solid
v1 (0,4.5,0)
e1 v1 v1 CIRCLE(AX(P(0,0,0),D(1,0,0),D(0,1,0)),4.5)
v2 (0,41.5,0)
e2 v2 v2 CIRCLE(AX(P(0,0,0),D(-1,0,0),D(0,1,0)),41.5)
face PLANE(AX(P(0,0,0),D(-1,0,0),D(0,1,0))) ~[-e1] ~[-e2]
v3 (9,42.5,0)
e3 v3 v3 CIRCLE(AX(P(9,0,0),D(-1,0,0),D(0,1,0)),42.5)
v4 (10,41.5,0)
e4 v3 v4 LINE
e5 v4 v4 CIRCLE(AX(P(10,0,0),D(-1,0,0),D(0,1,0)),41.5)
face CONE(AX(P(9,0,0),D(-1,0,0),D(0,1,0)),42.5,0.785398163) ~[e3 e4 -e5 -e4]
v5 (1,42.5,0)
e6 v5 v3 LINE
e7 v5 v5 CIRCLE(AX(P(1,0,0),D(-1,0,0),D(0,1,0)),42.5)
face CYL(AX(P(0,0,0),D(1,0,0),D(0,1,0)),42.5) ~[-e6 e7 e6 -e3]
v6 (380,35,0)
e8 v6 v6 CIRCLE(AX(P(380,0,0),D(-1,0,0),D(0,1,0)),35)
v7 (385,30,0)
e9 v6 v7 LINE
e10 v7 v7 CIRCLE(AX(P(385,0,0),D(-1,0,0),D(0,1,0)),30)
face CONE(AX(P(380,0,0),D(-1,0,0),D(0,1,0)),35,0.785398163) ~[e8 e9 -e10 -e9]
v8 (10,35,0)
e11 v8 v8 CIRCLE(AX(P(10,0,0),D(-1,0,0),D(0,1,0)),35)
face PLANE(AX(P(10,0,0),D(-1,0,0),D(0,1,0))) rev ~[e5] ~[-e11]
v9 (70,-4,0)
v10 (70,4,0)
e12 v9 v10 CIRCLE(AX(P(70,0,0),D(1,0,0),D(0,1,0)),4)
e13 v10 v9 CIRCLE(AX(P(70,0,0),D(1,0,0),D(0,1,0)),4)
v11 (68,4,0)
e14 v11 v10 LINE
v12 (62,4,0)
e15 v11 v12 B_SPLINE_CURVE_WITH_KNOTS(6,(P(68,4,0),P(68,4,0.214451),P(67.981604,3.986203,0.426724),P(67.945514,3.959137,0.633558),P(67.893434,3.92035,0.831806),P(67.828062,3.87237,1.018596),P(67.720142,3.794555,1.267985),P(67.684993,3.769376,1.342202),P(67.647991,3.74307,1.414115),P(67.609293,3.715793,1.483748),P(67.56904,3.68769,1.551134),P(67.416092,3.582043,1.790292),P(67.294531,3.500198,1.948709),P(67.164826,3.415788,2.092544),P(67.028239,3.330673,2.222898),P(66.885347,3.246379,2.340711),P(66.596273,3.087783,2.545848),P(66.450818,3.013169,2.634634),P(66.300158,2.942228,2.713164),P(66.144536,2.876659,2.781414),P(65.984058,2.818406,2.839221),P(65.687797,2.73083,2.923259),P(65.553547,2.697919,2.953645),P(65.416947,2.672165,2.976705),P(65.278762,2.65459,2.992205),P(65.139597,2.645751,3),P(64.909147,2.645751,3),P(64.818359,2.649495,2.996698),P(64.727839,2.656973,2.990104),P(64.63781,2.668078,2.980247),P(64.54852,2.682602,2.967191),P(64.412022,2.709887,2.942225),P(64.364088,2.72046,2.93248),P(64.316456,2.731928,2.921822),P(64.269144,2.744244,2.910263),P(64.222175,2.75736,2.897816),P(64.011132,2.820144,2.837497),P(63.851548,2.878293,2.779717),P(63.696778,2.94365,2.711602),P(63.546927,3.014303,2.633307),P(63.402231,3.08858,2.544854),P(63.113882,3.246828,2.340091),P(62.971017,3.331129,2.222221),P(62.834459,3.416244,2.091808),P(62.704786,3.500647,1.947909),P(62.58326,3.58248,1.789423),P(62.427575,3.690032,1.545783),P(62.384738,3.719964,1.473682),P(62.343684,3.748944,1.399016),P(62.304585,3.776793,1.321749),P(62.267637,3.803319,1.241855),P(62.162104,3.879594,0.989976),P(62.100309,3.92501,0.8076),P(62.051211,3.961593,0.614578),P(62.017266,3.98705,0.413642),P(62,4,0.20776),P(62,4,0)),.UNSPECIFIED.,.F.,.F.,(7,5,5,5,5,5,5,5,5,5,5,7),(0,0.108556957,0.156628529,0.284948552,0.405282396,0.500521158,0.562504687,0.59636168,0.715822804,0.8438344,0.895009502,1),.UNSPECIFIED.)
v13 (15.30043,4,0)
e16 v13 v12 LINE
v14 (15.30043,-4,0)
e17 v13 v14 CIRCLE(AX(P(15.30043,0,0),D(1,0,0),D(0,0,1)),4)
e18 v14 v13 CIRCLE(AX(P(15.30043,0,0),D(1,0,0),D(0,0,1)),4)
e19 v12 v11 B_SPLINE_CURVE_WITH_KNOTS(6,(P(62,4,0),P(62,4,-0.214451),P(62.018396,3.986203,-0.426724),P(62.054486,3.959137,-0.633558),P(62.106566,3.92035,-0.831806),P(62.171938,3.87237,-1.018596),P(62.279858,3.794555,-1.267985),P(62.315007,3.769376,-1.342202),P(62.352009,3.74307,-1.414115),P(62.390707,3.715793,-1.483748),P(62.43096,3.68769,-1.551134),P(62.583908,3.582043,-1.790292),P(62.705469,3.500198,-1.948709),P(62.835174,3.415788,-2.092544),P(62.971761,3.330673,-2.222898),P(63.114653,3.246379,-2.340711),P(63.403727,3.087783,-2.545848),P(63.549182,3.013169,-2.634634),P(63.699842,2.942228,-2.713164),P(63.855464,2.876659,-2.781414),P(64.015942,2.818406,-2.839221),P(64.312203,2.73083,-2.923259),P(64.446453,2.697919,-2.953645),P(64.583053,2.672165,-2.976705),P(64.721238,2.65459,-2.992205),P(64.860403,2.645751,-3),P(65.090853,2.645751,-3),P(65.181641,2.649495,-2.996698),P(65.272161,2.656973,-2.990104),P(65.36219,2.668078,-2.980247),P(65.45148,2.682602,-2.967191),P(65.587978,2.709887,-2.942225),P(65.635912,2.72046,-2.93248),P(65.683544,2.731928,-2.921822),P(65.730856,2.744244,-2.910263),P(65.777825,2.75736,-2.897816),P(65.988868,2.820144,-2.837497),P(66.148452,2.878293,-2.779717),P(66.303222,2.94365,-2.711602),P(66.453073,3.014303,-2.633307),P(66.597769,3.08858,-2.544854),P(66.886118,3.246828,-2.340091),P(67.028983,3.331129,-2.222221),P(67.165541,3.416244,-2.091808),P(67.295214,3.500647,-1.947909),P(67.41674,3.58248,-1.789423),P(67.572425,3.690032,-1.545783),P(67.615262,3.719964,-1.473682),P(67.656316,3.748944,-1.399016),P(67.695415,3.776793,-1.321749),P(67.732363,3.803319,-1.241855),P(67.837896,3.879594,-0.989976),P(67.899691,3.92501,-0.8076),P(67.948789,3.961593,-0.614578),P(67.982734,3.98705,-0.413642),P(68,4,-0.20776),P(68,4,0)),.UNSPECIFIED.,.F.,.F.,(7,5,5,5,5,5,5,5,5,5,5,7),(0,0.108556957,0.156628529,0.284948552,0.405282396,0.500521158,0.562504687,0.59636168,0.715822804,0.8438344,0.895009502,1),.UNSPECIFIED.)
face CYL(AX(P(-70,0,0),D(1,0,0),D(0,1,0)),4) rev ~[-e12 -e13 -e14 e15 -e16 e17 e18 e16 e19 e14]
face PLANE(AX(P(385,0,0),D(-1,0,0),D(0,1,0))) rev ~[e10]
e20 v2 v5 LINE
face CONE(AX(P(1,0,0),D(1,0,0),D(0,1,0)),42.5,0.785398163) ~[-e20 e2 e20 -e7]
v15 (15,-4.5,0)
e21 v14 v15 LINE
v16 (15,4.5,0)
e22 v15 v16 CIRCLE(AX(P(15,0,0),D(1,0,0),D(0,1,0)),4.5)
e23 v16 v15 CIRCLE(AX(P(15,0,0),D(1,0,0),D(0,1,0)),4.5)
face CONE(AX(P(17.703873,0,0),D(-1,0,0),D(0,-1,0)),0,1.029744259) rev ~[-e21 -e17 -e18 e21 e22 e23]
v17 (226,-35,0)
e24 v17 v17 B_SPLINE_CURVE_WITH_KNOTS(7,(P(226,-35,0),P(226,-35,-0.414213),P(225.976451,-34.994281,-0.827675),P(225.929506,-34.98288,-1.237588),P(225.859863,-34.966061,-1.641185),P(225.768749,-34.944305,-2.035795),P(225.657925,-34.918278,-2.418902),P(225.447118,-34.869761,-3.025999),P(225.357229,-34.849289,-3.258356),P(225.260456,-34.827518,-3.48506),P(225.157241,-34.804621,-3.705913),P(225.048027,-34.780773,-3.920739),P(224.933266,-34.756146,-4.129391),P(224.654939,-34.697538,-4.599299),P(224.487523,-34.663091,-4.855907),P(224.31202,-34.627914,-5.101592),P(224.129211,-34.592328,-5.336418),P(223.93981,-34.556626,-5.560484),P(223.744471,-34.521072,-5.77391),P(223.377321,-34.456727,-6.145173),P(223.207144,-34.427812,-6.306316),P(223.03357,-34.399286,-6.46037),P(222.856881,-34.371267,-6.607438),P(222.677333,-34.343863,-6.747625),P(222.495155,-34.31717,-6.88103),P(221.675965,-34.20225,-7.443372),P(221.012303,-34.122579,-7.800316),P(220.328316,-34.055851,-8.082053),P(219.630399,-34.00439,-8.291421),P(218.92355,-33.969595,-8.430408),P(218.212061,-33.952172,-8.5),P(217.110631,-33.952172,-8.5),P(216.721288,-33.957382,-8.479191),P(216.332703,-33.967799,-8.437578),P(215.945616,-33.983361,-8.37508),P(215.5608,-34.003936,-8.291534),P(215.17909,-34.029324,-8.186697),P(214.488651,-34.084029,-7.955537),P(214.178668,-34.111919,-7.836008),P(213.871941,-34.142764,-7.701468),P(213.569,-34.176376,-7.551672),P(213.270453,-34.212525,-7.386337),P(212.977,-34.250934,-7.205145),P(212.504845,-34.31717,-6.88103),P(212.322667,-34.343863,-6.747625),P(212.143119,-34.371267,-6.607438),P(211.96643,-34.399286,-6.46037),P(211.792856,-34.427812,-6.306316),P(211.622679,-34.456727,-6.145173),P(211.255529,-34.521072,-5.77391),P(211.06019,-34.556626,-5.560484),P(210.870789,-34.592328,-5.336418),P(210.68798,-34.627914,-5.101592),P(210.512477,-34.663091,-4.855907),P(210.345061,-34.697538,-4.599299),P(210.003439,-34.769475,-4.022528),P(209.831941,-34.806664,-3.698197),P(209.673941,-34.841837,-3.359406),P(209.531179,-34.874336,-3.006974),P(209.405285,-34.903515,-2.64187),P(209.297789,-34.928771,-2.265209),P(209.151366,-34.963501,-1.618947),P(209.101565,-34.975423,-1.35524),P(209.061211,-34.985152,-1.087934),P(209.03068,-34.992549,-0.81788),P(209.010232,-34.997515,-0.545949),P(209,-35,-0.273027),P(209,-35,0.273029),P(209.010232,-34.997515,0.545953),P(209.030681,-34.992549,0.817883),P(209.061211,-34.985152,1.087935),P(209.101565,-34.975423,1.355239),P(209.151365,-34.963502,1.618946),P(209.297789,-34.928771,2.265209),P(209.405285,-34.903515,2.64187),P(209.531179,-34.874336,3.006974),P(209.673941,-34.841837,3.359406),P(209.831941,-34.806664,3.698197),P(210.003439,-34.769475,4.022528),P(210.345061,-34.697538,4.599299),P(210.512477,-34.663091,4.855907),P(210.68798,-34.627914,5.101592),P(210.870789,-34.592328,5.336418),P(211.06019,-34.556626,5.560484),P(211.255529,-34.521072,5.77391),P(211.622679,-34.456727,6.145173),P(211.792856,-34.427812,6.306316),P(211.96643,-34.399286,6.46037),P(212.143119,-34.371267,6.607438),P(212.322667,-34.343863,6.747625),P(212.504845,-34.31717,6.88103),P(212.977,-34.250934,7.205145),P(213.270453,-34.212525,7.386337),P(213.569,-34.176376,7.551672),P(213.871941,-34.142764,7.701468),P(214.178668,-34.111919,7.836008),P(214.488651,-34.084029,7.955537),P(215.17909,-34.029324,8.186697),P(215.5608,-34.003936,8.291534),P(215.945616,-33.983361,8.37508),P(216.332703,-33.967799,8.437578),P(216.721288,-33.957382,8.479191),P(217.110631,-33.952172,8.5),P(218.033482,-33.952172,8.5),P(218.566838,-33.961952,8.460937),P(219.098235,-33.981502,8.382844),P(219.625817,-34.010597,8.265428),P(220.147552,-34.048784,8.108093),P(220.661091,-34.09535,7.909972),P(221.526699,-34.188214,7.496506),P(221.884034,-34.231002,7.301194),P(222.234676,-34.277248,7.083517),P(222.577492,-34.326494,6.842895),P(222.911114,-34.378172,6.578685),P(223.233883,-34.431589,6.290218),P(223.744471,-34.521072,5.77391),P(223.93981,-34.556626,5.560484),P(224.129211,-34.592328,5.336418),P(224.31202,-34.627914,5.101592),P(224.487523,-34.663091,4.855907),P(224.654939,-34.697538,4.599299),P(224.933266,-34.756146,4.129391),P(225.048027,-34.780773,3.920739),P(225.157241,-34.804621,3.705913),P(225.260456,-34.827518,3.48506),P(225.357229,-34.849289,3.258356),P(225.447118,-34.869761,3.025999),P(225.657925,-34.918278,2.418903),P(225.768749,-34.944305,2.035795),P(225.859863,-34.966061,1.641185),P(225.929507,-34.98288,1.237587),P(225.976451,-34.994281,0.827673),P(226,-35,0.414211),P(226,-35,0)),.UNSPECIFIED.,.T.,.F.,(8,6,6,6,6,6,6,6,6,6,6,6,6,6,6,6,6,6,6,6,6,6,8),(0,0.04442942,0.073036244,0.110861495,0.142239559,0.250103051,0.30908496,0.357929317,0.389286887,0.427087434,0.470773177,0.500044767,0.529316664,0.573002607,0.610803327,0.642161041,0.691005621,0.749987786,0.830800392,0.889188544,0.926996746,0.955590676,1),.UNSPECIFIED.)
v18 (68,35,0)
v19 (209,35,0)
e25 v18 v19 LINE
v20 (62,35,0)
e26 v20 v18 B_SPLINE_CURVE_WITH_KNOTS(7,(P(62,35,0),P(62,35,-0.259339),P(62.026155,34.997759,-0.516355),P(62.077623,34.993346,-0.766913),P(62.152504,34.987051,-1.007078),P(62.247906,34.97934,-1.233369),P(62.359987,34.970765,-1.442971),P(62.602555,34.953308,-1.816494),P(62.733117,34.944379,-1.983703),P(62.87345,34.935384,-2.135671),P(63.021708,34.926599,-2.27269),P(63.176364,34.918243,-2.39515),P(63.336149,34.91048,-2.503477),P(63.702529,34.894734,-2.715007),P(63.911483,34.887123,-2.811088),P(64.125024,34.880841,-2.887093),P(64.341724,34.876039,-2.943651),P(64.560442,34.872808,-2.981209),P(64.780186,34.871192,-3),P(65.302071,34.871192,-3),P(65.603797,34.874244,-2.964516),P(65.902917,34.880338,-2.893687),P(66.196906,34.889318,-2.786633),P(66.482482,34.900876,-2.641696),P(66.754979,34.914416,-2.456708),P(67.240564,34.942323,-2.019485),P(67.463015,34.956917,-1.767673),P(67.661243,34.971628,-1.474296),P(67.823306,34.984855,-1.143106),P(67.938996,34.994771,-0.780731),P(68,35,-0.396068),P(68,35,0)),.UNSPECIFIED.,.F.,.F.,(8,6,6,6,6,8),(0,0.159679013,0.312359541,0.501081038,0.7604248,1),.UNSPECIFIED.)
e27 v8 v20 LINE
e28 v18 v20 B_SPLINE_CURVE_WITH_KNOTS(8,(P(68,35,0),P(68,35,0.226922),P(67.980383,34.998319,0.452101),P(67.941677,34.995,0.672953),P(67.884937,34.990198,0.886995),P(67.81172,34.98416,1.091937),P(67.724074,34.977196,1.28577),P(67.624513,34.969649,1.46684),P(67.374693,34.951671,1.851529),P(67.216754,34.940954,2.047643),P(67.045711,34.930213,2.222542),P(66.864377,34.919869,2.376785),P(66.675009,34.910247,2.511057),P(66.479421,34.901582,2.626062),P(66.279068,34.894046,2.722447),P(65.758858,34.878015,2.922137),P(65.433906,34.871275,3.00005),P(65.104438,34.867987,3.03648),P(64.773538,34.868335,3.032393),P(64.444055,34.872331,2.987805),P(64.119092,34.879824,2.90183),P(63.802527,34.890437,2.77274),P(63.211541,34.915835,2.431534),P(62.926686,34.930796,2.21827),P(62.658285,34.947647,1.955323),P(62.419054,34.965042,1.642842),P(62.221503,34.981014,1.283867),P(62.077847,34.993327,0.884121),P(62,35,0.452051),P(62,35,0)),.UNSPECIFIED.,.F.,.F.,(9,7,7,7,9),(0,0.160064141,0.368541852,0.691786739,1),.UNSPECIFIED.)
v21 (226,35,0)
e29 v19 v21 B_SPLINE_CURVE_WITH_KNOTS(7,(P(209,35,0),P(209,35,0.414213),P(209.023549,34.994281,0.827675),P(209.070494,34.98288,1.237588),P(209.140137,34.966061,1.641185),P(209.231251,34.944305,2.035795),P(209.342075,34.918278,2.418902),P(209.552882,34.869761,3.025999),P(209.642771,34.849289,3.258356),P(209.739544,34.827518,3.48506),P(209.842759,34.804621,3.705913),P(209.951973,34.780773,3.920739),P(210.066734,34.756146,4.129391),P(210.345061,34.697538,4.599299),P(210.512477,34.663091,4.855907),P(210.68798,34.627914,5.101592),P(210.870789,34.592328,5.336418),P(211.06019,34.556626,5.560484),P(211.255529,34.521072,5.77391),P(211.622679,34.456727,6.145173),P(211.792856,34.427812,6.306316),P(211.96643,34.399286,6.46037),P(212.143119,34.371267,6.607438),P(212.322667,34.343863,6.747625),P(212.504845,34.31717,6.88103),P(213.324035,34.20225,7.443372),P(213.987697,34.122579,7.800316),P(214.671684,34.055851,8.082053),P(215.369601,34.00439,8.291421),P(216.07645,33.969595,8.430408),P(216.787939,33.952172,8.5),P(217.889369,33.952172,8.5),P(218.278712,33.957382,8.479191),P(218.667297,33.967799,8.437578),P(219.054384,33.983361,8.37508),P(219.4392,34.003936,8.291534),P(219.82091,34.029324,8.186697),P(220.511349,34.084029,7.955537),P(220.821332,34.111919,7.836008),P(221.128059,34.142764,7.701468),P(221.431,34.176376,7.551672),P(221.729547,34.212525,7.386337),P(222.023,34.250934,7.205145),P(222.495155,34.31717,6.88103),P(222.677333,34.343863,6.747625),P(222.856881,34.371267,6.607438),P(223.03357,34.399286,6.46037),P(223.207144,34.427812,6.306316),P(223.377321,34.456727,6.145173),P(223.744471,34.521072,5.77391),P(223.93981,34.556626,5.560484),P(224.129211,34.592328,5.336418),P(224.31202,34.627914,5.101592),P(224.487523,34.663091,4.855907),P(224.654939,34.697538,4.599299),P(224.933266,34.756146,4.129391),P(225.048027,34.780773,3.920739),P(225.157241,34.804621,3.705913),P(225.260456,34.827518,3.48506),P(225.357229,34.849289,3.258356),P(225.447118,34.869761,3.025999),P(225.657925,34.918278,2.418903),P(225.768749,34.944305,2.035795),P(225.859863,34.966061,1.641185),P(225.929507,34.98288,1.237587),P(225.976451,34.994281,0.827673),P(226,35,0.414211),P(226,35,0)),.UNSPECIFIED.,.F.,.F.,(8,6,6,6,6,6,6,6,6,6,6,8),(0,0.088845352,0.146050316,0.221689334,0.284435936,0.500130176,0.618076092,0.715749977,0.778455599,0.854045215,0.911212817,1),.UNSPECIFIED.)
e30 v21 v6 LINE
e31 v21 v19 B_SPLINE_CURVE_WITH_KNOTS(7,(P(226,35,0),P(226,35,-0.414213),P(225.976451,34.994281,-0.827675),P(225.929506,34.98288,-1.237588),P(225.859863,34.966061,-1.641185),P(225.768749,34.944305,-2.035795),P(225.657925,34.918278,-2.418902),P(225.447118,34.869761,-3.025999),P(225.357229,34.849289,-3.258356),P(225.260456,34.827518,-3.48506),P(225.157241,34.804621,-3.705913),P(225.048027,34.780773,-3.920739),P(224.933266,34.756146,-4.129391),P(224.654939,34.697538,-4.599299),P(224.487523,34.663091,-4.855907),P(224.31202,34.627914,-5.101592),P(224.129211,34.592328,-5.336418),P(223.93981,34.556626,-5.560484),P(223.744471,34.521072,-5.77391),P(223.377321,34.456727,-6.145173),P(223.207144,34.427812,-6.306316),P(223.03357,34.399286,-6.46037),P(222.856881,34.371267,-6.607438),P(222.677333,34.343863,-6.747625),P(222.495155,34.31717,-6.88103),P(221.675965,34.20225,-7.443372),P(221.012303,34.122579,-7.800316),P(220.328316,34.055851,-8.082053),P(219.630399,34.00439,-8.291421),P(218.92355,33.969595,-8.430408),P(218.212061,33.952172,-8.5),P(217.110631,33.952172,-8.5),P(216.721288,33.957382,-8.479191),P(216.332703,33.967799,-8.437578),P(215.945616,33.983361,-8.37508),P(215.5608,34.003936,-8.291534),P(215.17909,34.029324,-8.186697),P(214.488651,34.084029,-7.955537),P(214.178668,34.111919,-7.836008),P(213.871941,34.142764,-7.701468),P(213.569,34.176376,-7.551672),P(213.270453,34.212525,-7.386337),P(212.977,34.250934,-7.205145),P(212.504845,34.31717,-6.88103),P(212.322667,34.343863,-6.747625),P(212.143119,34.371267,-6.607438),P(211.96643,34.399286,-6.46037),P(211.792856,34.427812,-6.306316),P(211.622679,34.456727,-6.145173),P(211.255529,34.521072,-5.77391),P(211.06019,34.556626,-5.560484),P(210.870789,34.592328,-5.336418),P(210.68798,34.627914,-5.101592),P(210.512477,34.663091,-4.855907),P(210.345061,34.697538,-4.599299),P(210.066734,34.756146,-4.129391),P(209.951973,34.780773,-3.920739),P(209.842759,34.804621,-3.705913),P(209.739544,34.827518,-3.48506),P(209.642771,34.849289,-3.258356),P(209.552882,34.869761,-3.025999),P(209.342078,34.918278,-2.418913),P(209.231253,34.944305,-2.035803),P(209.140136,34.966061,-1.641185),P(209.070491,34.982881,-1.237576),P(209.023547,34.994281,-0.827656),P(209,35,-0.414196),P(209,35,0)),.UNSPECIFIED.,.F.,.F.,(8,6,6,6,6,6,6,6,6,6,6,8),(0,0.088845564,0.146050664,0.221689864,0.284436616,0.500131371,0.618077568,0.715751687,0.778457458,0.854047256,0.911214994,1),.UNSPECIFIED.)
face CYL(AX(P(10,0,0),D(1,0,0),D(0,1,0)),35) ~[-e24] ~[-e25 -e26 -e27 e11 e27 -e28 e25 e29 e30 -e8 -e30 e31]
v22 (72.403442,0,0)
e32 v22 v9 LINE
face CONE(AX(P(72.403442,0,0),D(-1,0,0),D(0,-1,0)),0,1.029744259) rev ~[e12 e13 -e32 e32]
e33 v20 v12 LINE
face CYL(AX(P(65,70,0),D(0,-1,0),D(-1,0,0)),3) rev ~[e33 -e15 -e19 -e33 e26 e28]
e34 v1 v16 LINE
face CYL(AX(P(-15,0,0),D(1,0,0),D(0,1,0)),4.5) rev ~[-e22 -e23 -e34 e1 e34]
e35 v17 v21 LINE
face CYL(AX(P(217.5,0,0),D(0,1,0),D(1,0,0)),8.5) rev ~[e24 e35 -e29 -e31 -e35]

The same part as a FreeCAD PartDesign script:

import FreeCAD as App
import Part
import Sketcher

V = App.Vector


def edges_at(feature, points):
    """Names of the edges that pass closest to the given points."""
    edges = feature.Shape.Edges
    near = lambda p: min(range(len(edges)), key=lambda i: edges[i].distToShape(Part.Vertex(*p))[0])
    return sorted({f"Edge{near(p) + 1}" for p in points})

doc = App.newDocument("Part")
params = doc.addObject("Spreadsheet::Sheet", "Params")
for row, (alias, value) in enumerate([
    ("sketch1_width", "385 mm"),
    ("sketch1_width2", "375 mm"),
    ("sketch1_height", "35 mm"),
    ("sketch1_height2", "42.5 mm"),
    ("revolution_angle", "360 deg"),
    ("chamfer_size", "1 mm"),
    ("sketch2_diameter", "8 mm"),
    ("hole_diameter", "8 mm"),
    ("hole_depth", "70 mm"),
    ("chamfer2_size", "5 mm"),
    ("sketch3_diameter", "9 mm"),
    ("hole2_diameter", "9 mm"),
    ("hole2_depth", "15 mm"),
    ("sketch4_diameter", "6 mm"),
    ("hole3_diameter", "6 mm"),
    ("hole3_depth", "35 mm"),
    ("sketch5_diameter", "17 mm"),
    ("pocket1_length", "70 mm"),
], start=1):
    params.set(f"A{row}", alias)
    params.set(f"B{row}", "=" + value)
    params.setAlias(f"B{row}", alias)

body = doc.addObject("PartDesign::Body", "Body")

# Sketch on XY plane
sketch1 = body.newObject("Sketcher::SketchObject", "Sketch")
sketch1.AttachmentSupport = (doc.getObject("XY_Plane"), [""])
sketch1.MapMode = "FlatFace"
sketch1.addGeometry([
    Part.LineSegment(V(0, 42, 0), V(0, 0, 0)),  # 0
    Part.LineSegment(V(0, 0, 0), V(385, 0, 0)),  # 1
    Part.LineSegment(V(385, 0, 0), V(385, 35, 0)),  # 2
    Part.LineSegment(V(385, 35, 0), V(10, 35, 0)),  # 3
    Part.LineSegment(V(10, 35, 0), V(10, 42, 0)),  # 4
    Part.LineSegment(V(10, 42, 0), V(0, 42, 0)),  # 5
], False)
sketch1.addConstraint([
    Sketcher.Constraint("Coincident", 0, 2, 1, 1),
    Sketcher.Constraint("Coincident", 1, 2, 2, 1),
    Sketcher.Constraint("Coincident", 2, 2, 3, 1),
    Sketcher.Constraint("Coincident", 3, 2, 4, 1),
    Sketcher.Constraint("Coincident", 4, 2, 5, 1),
    Sketcher.Constraint("Coincident", 5, 2, 0, 1),
    Sketcher.Constraint("Vertical", 0),
    Sketcher.Constraint("Horizontal", 1),
    Sketcher.Constraint("Vertical", 2),
    Sketcher.Constraint("Horizontal", 3),
    Sketcher.Constraint("Vertical", 4),
    Sketcher.Constraint("Horizontal", 5),
    Sketcher.Constraint("Coincident", 0, 2, -1, 1),
    Sketcher.Constraint("DistanceX", 1, 1, 1, 2, 385.0),
    Sketcher.Constraint("DistanceX", 3, 2, 3, 1, 375.0),
    Sketcher.Constraint("DistanceY", 2, 1, 2, 2, 35.0),
    Sketcher.Constraint("DistanceY", 0, 2, 0, 1, 42.5),
])
sketch1.setExpression("Constraints[13]", "Params.sketch1_width")
sketch1.setExpression("Constraints[14]", "Params.sketch1_width2")
sketch1.setExpression("Constraints[15]", "Params.sketch1_height")
sketch1.setExpression("Constraints[16]", "Params.sketch1_height2")
revolution = body.newObject("PartDesign::Revolution", "Revolution")
revolution.Profile = sketch1
revolution.ReferenceAxis = (sketch1, ["H_Axis"])
revolution.setExpression("Angle", "Params.revolution_angle")
doc.recompute()

chamfer = body.newObject("PartDesign::Chamfer", "Chamfer")
chamfer.Base = (revolution, edges_at(revolution, [(10, -42.5, 0), (0, -42.5, 0)]))
chamfer.setExpression("Size", "Params.chamfer_size")

# Sketch on YZ plane
sketch2 = body.newObject("Sketcher::SketchObject", "Sketch001")
sketch2.AttachmentSupport = (doc.getObject("YZ_Plane"), [""])
sketch2.MapMode = "FlatFace"
sketch2.addGeometry(Part.Circle(V(0, 0, 0), V(0, 0, 1), 4), False)
sketch2.addConstraint([
    Sketcher.Constraint("Coincident", 0, 3, -1, 1),
    Sketcher.Constraint("Diameter", 0, 8.0),
])
sketch2.setExpression("Constraints[1]", "Params.sketch2_diameter")
doc.recompute()
hole = body.newObject("PartDesign::Hole", "Hole")
hole.Profile = sketch2
hole.ThreadType = "None"
hole.setExpression("Diameter", "Params.hole_diameter")
hole.DepthType = "Dimension"
hole.setExpression("Depth", "Params.hole_depth")
hole.DrillPoint = "Angled"
hole.DrillPointAngle = 118
hole.Reversed = True
doc.recompute()

chamfer2 = body.newObject("PartDesign::Chamfer", "Chamfer001")
chamfer2.Base = (hole, edges_at(hole, [(385, -35, 0)]))
chamfer2.setExpression("Size", "Params.chamfer2_size")

# Sketch on YZ plane
sketch3 = body.newObject("Sketcher::SketchObject", "Sketch002")
sketch3.AttachmentSupport = (doc.getObject("YZ_Plane"), [""])
sketch3.MapMode = "FlatFace"
sketch3.addGeometry(Part.Circle(V(0, 0, 0), V(0, 0, 1), 4.5), False)
sketch3.addConstraint([
    Sketcher.Constraint("Coincident", 0, 3, -1, 1),
    Sketcher.Constraint("Diameter", 0, 9.0),
])
sketch3.setExpression("Constraints[1]", "Params.sketch3_diameter")
doc.recompute()
hole2 = body.newObject("PartDesign::Hole", "Hole001")
hole2.Profile = sketch3
hole2.ThreadType = "None"
hole2.setExpression("Diameter", "Params.hole2_diameter")
hole2.DepthType = "Dimension"
hole2.setExpression("Depth", "Params.hole2_depth")
hole2.DrillPoint = "Angled"
hole2.DrillPointAngle = 118
hole2.Reversed = True

# Sketch on XZ plane
sketch4 = body.newObject("Sketcher::SketchObject", "Sketch003")
sketch4.AttachmentSupport = (doc.getObject("XZ_Plane"), [""])
sketch4.MapMode = "FlatFace"
sketch4.AttachmentOffset = App.Placement(V(0, 0, -35), App.Rotation())
sketch4.addGeometry(Part.Circle(V(65, 0, 0), V(0, 0, 1), 3), False)
sketch4.addConstraint([
    Sketcher.Constraint("PointOnObject", 0, 3, -1),
    Sketcher.Constraint("Diameter", 0, 6.0),
    Sketcher.Constraint("DistanceX", -1, 1, 0, 3, 65.0),
])
sketch4.setExpression("Constraints[1]", "Params.sketch4_diameter")
doc.recompute()
hole3 = body.newObject("PartDesign::Hole", "Hole002")
hole3.Profile = sketch4
hole3.ThreadType = "None"
hole3.setExpression("Diameter", "Params.hole3_diameter")
hole3.DepthType = "Dimension"
hole3.setExpression("Depth", "Params.hole3_depth")
hole3.DrillPoint = "Angled"
hole3.DrillPointAngle = 118
hole3.Reversed = True

# Sketch on XZ plane
sketch5 = body.newObject("Sketcher::SketchObject", "Sketch004")
sketch5.AttachmentSupport = (doc.getObject("XZ_Plane"), [""])
sketch5.MapMode = "FlatFace"
sketch5.addGeometry(Part.Circle(V(218, 0, 0), V(0, 0, 1), 8), False)
sketch5.addConstraint([
    Sketcher.Constraint("PointOnObject", 0, 3, -1),
    Sketcher.Constraint("Diameter", 0, 17.0),
    Sketcher.Constraint("DistanceX", -1, 1, 0, 3, 217.5),
])
sketch5.setExpression("Constraints[1]", "Params.sketch5_diameter")
pocket1 = body.newObject("PartDesign::Pocket", "Pocket")
pocket1.Profile = sketch5
pocket1.setExpression("Length", "Params.pocket1_length")
pocket1.Midplane = True

doc.recompute()
